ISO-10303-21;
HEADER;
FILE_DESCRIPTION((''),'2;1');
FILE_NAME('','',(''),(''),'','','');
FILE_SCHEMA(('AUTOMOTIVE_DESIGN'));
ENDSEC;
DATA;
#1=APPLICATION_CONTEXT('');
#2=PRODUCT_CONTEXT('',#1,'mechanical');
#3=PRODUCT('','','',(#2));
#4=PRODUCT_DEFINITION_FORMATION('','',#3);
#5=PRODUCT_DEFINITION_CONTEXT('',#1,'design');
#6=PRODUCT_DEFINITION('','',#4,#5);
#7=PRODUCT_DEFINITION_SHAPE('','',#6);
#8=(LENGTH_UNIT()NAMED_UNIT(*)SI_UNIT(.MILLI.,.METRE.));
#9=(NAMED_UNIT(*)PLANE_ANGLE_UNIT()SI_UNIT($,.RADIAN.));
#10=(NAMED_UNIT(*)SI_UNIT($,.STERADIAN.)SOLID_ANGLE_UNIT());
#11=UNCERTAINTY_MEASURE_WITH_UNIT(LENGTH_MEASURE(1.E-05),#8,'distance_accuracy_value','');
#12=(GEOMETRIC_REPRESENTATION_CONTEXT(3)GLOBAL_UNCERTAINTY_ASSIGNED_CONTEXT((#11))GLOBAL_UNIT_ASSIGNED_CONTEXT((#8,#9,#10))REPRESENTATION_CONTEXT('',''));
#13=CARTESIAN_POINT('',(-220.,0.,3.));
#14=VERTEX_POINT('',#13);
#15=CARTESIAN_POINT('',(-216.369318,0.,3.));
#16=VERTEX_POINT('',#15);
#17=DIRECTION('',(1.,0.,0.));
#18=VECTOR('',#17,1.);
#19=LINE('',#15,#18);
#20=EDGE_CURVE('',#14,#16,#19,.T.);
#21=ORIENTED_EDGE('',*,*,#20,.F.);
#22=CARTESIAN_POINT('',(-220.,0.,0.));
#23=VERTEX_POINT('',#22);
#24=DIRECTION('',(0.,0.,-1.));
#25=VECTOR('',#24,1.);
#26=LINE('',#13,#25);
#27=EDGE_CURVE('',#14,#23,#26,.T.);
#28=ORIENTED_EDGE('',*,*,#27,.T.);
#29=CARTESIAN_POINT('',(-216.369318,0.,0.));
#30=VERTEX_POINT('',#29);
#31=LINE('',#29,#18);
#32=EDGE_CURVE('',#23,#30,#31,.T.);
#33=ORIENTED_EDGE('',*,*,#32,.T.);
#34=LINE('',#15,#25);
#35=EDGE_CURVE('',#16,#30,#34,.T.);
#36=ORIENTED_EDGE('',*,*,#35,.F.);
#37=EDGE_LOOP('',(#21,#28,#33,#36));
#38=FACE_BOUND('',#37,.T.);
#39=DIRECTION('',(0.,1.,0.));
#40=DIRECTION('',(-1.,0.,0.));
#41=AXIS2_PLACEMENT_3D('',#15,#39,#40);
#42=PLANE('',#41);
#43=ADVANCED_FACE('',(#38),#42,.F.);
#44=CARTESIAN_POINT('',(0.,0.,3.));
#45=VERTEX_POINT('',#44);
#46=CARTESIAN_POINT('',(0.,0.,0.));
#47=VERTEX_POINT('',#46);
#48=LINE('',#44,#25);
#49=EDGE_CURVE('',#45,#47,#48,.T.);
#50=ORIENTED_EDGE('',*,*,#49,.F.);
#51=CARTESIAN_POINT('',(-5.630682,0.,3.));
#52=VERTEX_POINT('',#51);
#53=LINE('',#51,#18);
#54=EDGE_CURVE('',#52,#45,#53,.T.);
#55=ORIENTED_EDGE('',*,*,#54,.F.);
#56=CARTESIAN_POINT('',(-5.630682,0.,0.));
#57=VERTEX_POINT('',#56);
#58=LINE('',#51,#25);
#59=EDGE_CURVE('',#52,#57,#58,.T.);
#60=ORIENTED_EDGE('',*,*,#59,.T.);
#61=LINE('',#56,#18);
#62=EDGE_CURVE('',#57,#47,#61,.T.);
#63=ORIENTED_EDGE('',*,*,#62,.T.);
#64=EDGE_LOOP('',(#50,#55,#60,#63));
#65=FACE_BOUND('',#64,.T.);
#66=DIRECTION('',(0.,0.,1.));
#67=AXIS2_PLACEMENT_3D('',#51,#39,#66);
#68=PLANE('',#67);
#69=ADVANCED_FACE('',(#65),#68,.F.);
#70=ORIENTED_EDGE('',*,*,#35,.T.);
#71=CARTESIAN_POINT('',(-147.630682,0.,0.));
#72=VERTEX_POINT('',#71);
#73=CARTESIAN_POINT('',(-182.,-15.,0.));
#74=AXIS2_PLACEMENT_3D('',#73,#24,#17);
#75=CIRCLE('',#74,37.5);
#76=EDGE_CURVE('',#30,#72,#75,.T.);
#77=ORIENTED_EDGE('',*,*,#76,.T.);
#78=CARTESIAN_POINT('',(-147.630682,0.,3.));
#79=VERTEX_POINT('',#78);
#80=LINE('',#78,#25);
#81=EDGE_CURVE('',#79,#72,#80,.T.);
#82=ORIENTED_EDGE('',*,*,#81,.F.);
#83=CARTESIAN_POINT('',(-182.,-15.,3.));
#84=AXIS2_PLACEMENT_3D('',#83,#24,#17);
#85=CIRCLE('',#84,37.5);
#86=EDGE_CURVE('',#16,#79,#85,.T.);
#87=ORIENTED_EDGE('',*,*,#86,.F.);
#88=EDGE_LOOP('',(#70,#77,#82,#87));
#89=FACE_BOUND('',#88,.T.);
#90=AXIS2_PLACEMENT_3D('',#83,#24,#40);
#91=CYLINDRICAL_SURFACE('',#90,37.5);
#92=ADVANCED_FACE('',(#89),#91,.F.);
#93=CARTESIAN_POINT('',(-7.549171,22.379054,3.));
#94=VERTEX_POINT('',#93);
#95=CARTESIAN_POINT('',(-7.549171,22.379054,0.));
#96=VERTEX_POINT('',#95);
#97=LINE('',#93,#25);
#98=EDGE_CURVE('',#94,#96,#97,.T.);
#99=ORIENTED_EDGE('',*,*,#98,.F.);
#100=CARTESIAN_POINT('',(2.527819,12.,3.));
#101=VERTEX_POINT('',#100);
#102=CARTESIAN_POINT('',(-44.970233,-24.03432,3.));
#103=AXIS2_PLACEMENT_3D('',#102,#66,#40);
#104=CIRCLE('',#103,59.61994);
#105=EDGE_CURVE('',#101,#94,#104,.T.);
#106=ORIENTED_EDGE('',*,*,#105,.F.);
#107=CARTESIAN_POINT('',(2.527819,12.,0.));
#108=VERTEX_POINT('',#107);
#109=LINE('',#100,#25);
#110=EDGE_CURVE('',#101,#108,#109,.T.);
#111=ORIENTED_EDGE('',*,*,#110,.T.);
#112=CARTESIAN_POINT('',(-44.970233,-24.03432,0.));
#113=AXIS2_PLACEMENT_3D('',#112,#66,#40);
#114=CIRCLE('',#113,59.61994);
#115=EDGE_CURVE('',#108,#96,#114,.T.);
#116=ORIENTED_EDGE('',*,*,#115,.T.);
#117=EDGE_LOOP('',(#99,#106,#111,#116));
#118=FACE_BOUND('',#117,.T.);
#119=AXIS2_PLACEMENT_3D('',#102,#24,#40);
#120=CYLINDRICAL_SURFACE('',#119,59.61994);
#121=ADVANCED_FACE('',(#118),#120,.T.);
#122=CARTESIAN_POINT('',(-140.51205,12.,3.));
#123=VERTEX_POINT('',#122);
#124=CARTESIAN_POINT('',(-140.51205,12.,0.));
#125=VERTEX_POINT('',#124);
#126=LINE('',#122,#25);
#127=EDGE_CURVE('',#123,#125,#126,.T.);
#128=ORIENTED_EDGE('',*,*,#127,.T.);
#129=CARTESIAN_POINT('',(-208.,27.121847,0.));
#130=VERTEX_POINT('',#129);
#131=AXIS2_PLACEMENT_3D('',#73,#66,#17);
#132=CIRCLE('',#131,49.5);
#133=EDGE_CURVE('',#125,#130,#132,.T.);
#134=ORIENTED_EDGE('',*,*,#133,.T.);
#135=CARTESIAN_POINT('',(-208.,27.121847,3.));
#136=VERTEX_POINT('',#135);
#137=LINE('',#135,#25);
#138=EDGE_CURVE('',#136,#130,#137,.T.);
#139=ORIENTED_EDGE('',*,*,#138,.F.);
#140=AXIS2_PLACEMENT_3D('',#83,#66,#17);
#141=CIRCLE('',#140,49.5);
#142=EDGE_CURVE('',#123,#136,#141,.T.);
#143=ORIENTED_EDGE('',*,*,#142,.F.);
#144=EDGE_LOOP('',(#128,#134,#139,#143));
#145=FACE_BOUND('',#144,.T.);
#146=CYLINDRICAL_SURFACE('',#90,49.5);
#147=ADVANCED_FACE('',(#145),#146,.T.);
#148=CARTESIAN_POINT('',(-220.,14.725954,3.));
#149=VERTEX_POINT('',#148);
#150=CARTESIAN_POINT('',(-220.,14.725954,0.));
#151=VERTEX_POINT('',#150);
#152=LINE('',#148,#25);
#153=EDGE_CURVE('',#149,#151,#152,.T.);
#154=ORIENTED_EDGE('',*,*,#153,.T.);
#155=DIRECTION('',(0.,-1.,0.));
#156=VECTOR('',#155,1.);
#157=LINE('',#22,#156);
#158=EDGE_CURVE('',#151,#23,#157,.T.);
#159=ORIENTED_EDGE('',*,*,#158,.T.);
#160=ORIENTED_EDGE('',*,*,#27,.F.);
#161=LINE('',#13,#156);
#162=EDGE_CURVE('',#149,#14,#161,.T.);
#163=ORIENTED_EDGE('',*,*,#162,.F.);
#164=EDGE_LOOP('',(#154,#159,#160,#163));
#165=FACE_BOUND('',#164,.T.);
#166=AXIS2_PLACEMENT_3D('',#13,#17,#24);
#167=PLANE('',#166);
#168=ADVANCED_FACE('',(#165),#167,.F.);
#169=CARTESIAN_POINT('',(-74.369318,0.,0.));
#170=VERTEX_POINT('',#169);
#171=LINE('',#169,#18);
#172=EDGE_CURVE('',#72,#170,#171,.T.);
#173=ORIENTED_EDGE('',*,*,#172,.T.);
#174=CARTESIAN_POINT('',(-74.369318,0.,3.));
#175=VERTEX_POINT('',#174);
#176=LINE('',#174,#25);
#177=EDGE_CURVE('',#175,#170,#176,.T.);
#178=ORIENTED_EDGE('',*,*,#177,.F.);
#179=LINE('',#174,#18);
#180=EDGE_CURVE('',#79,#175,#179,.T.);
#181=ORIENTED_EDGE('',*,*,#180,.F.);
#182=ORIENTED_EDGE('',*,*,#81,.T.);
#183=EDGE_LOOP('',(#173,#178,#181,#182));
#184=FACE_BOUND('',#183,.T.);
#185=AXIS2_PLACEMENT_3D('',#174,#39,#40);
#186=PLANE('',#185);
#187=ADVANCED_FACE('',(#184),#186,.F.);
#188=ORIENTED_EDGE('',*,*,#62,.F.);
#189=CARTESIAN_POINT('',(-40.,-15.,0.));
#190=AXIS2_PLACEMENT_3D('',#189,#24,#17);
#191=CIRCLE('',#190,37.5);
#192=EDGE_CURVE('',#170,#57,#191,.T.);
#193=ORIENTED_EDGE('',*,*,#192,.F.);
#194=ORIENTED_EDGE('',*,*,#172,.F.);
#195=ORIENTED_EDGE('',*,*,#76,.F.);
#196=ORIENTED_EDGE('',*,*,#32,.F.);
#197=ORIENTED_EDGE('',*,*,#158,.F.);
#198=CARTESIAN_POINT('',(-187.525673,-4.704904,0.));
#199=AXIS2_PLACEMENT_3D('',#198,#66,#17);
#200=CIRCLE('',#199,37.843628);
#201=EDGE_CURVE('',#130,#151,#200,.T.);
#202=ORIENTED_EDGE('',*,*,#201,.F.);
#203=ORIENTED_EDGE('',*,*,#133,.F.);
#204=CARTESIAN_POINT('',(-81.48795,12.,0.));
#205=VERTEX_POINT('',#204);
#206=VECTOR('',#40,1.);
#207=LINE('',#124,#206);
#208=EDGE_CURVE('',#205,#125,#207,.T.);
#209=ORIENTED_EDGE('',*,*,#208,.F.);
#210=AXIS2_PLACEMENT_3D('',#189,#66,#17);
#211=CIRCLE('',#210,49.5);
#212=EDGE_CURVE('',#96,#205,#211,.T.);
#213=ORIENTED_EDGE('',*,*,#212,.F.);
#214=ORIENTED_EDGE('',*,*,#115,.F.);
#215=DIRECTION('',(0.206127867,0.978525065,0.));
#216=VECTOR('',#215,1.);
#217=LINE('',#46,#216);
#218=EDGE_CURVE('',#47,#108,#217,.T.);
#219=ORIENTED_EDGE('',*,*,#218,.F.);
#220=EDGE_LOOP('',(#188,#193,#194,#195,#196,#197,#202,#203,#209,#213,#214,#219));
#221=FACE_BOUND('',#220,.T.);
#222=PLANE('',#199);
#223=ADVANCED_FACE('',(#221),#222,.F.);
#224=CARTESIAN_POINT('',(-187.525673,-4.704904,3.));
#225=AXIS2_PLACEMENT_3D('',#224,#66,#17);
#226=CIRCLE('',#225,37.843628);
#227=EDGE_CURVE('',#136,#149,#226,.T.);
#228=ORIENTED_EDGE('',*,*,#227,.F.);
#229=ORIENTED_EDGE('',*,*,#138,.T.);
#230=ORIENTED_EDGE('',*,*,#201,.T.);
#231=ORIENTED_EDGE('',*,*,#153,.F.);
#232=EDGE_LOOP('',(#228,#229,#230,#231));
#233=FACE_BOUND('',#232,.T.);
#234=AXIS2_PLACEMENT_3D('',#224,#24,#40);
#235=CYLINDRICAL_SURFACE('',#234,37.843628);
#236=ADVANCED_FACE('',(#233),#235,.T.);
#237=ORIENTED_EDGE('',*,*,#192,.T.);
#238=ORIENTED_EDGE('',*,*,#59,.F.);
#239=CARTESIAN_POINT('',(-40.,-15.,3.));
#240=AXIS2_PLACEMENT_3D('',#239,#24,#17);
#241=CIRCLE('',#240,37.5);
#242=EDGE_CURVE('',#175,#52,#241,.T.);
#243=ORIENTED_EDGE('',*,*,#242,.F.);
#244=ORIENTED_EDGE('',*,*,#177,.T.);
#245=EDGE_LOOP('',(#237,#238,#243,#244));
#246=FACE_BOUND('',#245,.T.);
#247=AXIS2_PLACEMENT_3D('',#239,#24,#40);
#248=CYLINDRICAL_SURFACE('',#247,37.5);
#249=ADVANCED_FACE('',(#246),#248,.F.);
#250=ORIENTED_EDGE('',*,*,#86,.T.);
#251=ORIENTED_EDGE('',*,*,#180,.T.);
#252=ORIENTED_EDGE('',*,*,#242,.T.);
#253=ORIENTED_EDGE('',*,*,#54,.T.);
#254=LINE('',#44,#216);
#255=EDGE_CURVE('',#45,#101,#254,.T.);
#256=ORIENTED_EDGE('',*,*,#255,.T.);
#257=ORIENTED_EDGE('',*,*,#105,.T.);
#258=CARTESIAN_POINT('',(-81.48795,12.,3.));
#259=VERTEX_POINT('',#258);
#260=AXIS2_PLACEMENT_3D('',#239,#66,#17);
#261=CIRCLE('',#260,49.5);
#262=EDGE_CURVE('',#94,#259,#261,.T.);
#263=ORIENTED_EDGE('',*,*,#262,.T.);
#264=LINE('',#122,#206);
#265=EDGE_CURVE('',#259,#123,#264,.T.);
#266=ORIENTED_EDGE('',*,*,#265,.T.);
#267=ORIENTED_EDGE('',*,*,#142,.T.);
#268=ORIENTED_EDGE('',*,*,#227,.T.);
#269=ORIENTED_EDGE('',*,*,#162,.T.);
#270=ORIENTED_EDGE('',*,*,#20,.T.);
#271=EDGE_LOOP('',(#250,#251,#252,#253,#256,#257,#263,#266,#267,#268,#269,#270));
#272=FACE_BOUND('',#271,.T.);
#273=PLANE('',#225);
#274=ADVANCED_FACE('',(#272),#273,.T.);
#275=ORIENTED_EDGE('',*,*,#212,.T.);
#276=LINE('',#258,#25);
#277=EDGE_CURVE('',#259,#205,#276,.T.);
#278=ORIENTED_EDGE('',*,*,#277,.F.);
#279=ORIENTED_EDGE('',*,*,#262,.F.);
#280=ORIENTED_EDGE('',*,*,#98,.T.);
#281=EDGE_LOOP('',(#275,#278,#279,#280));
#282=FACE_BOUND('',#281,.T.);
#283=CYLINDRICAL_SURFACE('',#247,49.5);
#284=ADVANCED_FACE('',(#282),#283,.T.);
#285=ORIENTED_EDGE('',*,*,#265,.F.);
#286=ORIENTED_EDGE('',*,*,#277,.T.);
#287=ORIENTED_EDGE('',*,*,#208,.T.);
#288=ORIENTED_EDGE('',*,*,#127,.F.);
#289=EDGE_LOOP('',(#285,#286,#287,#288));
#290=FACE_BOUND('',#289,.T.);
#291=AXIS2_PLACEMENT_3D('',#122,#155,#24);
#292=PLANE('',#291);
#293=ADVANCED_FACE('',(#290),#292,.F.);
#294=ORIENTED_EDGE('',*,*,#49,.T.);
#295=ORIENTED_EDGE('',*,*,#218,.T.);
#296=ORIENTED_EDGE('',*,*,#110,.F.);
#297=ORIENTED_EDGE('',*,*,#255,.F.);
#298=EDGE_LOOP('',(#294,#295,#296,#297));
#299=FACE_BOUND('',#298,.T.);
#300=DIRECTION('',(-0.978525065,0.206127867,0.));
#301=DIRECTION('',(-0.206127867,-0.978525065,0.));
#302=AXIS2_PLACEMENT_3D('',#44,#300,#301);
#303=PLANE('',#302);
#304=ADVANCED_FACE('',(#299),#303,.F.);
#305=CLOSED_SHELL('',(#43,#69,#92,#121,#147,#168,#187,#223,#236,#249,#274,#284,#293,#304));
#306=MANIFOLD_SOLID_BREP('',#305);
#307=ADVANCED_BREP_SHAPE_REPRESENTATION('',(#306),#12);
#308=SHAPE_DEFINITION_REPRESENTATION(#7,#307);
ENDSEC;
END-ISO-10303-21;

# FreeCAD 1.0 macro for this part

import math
import FreeCAD as App
import Part
import Sketcher
Q = App.Units.Quantity

doc = App.newDocument("Part")
body = doc.addObject("PartDesign::Body", "Body")

# Sketch on XY plane
sketch1 = body.newObject("Sketcher::SketchObject", "Sketch")
sketch1.AttachmentSupport = (doc.getObject("XY_Plane"), [""])
sketch1.MapMode = "FlatFace"
sketch1.addGeometry(Part.LineSegment(App.Vector(-5.6, 0, 0), App.Vector(0, 0, 0)), False)
sketch1.addGeometry(Part.LineSegment(App.Vector(0, 0, 0), App.Vector(2.5, 12, 0)), False)
sketch1.addGeometry(Part.ArcOfCircle(Part.Circle(App.Vector(-45, -24, 0), App.Vector(0, 0, 1), 59.6), math.radians(37.19), math.radians(51.12)), False)
sketch1.addGeometry(Part.ArcOfCircle(Part.Circle(App.Vector(-40, -15, 0), App.Vector(0, 0, 1), 49.5), math.radians(49), math.radians(147)), False)
sketch1.addGeometry(Part.LineSegment(App.Vector(-81.5, 12, 0), App.Vector(-140.5, 12, 0)), False)
sketch1.addGeometry(Part.ArcOfCircle(Part.Circle(App.Vector(-182, -15, 0), App.Vector(0, 0, 1), 49.5), math.radians(33), math.radians(122)), False)
sketch1.addGeometry(Part.ArcOfCircle(Part.Circle(App.Vector(-187.5, -4.7, 0), App.Vector(0, 0, 1), 37.8), math.radians(123), math.radians(149)), False)
sketch1.addGeometry(Part.LineSegment(App.Vector(-220, 14.7, 0), App.Vector(-220, 0, 0)), False)
sketch1.addGeometry(Part.LineSegment(App.Vector(-220, 0, 0), App.Vector(-216.4, 0, 0)), False)
sketch1.addGeometry(Part.ArcOfCircle(Part.Circle(App.Vector(-182, -15, 0), App.Vector(0, 0, 1), 37.5), math.radians(24), math.radians(156)), False)
sketch1.addGeometry(Part.LineSegment(App.Vector(-147.6, 0, 0), App.Vector(-74.4, 0, 0)), False)
sketch1.addGeometry(Part.ArcOfCircle(Part.Circle(App.Vector(-40, -15, 0), App.Vector(0, 0, 1), 37.5), math.radians(24), math.radians(156)), False)
sketch1.addConstraint(Sketcher.Constraint("Coincident", 0, 2, 1, 1))
sketch1.addConstraint(Sketcher.Constraint("Coincident", 1, 2, 2, 1))
sketch1.addConstraint(Sketcher.Constraint("Coincident", 2, 2, 3, 1))
sketch1.addConstraint(Sketcher.Constraint("Coincident", 3, 2, 4, 1))
sketch1.addConstraint(Sketcher.Constraint("Coincident", 4, 2, 5, 1))
sketch1.addConstraint(Sketcher.Constraint("Coincident", 5, 2, 6, 1))
sketch1.addConstraint(Sketcher.Constraint("Coincident", 6, 2, 7, 1))
sketch1.addConstraint(Sketcher.Constraint("Coincident", 7, 2, 8, 1))
sketch1.addConstraint(Sketcher.Constraint("Coincident", 8, 2, 9, 2))
sketch1.addConstraint(Sketcher.Constraint("Coincident", 9, 1, 10, 1))
sketch1.addConstraint(Sketcher.Constraint("Coincident", 10, 2, 11, 2))
sketch1.addConstraint(Sketcher.Constraint("Coincident", 11, 1, 0, 1))
sketch1.addConstraint(Sketcher.Constraint("Horizontal", 0))
sketch1.addConstraint(Sketcher.Constraint("Horizontal", 4))
sketch1.addConstraint(Sketcher.Constraint("Vertical", 7))
sketch1.addConstraint(Sketcher.Constraint("Horizontal", 8))
sketch1.addConstraint(Sketcher.Constraint("Horizontal", 10))
sketch1.addConstraint(Sketcher.Constraint("Coincident", 0, 2, -1, 1))
sketch1.addConstraint(Sketcher.Constraint("Coincident", 9, 3, 5, 3))
sketch1.addConstraint(Sketcher.Constraint("Coincident", 11, 3, 3, 3))
sketch1.addConstraint(Sketcher.Constraint("Equal", 3, 5))
sketch1.addConstraint(Sketcher.Constraint("Equal", 9, 11))
sketch1.addConstraint(Sketcher.Constraint("PointOnObject", 7, 2, -1))
sketch1.addConstraint(Sketcher.Constraint("PointOnObject", 9, 1, -1))
sketch1.addConstraint(Sketcher.Constraint("Horizontal", 3, 3, 5, 3))
sketch1.addConstraint(Sketcher.Constraint("Horizontal", 1, 2, 3, 2))
sketch1.addConstraint(Sketcher.Constraint("Radius", 3, Q("49.5 mm")))
sketch1.addConstraint(Sketcher.Constraint("Radius", 9, Q("37.5 mm")))
sketch1.addConstraint(Sketcher.Constraint("DistanceX", 3, 3, -1, 1, Q("40 mm")))
sketch1.addConstraint(Sketcher.Constraint("DistanceY", 3, 3, -1, 1, Q("15 mm")))
sketch1.addConstraint(Sketcher.Constraint("DistanceX", 5, 3, -1, 1, Q("182 mm")))
sketch1.addConstraint(Sketcher.Constraint("DistanceY", -1, 1, 1, 2, Q("12 mm")))
sketch1.addConstraint(Sketcher.Constraint("DistanceX", 5, 2, -1, 1, Q("208 mm")))
sketch1.addConstraint(Sketcher.Constraint("DistanceX", 6, 2, -1, 1, Q("220 mm")))
sketch1.addConstraint(Sketcher.Constraint("Radius", 2, Q("59.61994 mm")))
sketch1.addConstraint(Sketcher.Constraint("Radius", 6, Q("37.843628 mm")))
sketch1.addConstraint(Sketcher.Constraint("DistanceX", 11, 1, 1, 2, Q("8.158501 mm")))
sketch1.addConstraint(Sketcher.Constraint("DistanceY", 7, 2, 7, 1, Q("14.725954 mm")))
sketch1.addConstraint(Sketcher.Constraint("DistanceY", 2, 3, -1, 1, Q("24.03432 mm")))
pad1 = body.newObject("PartDesign::Pad", "Pad")
pad1.Profile = sketch1
pad1.Length = 3

doc.recompute()
